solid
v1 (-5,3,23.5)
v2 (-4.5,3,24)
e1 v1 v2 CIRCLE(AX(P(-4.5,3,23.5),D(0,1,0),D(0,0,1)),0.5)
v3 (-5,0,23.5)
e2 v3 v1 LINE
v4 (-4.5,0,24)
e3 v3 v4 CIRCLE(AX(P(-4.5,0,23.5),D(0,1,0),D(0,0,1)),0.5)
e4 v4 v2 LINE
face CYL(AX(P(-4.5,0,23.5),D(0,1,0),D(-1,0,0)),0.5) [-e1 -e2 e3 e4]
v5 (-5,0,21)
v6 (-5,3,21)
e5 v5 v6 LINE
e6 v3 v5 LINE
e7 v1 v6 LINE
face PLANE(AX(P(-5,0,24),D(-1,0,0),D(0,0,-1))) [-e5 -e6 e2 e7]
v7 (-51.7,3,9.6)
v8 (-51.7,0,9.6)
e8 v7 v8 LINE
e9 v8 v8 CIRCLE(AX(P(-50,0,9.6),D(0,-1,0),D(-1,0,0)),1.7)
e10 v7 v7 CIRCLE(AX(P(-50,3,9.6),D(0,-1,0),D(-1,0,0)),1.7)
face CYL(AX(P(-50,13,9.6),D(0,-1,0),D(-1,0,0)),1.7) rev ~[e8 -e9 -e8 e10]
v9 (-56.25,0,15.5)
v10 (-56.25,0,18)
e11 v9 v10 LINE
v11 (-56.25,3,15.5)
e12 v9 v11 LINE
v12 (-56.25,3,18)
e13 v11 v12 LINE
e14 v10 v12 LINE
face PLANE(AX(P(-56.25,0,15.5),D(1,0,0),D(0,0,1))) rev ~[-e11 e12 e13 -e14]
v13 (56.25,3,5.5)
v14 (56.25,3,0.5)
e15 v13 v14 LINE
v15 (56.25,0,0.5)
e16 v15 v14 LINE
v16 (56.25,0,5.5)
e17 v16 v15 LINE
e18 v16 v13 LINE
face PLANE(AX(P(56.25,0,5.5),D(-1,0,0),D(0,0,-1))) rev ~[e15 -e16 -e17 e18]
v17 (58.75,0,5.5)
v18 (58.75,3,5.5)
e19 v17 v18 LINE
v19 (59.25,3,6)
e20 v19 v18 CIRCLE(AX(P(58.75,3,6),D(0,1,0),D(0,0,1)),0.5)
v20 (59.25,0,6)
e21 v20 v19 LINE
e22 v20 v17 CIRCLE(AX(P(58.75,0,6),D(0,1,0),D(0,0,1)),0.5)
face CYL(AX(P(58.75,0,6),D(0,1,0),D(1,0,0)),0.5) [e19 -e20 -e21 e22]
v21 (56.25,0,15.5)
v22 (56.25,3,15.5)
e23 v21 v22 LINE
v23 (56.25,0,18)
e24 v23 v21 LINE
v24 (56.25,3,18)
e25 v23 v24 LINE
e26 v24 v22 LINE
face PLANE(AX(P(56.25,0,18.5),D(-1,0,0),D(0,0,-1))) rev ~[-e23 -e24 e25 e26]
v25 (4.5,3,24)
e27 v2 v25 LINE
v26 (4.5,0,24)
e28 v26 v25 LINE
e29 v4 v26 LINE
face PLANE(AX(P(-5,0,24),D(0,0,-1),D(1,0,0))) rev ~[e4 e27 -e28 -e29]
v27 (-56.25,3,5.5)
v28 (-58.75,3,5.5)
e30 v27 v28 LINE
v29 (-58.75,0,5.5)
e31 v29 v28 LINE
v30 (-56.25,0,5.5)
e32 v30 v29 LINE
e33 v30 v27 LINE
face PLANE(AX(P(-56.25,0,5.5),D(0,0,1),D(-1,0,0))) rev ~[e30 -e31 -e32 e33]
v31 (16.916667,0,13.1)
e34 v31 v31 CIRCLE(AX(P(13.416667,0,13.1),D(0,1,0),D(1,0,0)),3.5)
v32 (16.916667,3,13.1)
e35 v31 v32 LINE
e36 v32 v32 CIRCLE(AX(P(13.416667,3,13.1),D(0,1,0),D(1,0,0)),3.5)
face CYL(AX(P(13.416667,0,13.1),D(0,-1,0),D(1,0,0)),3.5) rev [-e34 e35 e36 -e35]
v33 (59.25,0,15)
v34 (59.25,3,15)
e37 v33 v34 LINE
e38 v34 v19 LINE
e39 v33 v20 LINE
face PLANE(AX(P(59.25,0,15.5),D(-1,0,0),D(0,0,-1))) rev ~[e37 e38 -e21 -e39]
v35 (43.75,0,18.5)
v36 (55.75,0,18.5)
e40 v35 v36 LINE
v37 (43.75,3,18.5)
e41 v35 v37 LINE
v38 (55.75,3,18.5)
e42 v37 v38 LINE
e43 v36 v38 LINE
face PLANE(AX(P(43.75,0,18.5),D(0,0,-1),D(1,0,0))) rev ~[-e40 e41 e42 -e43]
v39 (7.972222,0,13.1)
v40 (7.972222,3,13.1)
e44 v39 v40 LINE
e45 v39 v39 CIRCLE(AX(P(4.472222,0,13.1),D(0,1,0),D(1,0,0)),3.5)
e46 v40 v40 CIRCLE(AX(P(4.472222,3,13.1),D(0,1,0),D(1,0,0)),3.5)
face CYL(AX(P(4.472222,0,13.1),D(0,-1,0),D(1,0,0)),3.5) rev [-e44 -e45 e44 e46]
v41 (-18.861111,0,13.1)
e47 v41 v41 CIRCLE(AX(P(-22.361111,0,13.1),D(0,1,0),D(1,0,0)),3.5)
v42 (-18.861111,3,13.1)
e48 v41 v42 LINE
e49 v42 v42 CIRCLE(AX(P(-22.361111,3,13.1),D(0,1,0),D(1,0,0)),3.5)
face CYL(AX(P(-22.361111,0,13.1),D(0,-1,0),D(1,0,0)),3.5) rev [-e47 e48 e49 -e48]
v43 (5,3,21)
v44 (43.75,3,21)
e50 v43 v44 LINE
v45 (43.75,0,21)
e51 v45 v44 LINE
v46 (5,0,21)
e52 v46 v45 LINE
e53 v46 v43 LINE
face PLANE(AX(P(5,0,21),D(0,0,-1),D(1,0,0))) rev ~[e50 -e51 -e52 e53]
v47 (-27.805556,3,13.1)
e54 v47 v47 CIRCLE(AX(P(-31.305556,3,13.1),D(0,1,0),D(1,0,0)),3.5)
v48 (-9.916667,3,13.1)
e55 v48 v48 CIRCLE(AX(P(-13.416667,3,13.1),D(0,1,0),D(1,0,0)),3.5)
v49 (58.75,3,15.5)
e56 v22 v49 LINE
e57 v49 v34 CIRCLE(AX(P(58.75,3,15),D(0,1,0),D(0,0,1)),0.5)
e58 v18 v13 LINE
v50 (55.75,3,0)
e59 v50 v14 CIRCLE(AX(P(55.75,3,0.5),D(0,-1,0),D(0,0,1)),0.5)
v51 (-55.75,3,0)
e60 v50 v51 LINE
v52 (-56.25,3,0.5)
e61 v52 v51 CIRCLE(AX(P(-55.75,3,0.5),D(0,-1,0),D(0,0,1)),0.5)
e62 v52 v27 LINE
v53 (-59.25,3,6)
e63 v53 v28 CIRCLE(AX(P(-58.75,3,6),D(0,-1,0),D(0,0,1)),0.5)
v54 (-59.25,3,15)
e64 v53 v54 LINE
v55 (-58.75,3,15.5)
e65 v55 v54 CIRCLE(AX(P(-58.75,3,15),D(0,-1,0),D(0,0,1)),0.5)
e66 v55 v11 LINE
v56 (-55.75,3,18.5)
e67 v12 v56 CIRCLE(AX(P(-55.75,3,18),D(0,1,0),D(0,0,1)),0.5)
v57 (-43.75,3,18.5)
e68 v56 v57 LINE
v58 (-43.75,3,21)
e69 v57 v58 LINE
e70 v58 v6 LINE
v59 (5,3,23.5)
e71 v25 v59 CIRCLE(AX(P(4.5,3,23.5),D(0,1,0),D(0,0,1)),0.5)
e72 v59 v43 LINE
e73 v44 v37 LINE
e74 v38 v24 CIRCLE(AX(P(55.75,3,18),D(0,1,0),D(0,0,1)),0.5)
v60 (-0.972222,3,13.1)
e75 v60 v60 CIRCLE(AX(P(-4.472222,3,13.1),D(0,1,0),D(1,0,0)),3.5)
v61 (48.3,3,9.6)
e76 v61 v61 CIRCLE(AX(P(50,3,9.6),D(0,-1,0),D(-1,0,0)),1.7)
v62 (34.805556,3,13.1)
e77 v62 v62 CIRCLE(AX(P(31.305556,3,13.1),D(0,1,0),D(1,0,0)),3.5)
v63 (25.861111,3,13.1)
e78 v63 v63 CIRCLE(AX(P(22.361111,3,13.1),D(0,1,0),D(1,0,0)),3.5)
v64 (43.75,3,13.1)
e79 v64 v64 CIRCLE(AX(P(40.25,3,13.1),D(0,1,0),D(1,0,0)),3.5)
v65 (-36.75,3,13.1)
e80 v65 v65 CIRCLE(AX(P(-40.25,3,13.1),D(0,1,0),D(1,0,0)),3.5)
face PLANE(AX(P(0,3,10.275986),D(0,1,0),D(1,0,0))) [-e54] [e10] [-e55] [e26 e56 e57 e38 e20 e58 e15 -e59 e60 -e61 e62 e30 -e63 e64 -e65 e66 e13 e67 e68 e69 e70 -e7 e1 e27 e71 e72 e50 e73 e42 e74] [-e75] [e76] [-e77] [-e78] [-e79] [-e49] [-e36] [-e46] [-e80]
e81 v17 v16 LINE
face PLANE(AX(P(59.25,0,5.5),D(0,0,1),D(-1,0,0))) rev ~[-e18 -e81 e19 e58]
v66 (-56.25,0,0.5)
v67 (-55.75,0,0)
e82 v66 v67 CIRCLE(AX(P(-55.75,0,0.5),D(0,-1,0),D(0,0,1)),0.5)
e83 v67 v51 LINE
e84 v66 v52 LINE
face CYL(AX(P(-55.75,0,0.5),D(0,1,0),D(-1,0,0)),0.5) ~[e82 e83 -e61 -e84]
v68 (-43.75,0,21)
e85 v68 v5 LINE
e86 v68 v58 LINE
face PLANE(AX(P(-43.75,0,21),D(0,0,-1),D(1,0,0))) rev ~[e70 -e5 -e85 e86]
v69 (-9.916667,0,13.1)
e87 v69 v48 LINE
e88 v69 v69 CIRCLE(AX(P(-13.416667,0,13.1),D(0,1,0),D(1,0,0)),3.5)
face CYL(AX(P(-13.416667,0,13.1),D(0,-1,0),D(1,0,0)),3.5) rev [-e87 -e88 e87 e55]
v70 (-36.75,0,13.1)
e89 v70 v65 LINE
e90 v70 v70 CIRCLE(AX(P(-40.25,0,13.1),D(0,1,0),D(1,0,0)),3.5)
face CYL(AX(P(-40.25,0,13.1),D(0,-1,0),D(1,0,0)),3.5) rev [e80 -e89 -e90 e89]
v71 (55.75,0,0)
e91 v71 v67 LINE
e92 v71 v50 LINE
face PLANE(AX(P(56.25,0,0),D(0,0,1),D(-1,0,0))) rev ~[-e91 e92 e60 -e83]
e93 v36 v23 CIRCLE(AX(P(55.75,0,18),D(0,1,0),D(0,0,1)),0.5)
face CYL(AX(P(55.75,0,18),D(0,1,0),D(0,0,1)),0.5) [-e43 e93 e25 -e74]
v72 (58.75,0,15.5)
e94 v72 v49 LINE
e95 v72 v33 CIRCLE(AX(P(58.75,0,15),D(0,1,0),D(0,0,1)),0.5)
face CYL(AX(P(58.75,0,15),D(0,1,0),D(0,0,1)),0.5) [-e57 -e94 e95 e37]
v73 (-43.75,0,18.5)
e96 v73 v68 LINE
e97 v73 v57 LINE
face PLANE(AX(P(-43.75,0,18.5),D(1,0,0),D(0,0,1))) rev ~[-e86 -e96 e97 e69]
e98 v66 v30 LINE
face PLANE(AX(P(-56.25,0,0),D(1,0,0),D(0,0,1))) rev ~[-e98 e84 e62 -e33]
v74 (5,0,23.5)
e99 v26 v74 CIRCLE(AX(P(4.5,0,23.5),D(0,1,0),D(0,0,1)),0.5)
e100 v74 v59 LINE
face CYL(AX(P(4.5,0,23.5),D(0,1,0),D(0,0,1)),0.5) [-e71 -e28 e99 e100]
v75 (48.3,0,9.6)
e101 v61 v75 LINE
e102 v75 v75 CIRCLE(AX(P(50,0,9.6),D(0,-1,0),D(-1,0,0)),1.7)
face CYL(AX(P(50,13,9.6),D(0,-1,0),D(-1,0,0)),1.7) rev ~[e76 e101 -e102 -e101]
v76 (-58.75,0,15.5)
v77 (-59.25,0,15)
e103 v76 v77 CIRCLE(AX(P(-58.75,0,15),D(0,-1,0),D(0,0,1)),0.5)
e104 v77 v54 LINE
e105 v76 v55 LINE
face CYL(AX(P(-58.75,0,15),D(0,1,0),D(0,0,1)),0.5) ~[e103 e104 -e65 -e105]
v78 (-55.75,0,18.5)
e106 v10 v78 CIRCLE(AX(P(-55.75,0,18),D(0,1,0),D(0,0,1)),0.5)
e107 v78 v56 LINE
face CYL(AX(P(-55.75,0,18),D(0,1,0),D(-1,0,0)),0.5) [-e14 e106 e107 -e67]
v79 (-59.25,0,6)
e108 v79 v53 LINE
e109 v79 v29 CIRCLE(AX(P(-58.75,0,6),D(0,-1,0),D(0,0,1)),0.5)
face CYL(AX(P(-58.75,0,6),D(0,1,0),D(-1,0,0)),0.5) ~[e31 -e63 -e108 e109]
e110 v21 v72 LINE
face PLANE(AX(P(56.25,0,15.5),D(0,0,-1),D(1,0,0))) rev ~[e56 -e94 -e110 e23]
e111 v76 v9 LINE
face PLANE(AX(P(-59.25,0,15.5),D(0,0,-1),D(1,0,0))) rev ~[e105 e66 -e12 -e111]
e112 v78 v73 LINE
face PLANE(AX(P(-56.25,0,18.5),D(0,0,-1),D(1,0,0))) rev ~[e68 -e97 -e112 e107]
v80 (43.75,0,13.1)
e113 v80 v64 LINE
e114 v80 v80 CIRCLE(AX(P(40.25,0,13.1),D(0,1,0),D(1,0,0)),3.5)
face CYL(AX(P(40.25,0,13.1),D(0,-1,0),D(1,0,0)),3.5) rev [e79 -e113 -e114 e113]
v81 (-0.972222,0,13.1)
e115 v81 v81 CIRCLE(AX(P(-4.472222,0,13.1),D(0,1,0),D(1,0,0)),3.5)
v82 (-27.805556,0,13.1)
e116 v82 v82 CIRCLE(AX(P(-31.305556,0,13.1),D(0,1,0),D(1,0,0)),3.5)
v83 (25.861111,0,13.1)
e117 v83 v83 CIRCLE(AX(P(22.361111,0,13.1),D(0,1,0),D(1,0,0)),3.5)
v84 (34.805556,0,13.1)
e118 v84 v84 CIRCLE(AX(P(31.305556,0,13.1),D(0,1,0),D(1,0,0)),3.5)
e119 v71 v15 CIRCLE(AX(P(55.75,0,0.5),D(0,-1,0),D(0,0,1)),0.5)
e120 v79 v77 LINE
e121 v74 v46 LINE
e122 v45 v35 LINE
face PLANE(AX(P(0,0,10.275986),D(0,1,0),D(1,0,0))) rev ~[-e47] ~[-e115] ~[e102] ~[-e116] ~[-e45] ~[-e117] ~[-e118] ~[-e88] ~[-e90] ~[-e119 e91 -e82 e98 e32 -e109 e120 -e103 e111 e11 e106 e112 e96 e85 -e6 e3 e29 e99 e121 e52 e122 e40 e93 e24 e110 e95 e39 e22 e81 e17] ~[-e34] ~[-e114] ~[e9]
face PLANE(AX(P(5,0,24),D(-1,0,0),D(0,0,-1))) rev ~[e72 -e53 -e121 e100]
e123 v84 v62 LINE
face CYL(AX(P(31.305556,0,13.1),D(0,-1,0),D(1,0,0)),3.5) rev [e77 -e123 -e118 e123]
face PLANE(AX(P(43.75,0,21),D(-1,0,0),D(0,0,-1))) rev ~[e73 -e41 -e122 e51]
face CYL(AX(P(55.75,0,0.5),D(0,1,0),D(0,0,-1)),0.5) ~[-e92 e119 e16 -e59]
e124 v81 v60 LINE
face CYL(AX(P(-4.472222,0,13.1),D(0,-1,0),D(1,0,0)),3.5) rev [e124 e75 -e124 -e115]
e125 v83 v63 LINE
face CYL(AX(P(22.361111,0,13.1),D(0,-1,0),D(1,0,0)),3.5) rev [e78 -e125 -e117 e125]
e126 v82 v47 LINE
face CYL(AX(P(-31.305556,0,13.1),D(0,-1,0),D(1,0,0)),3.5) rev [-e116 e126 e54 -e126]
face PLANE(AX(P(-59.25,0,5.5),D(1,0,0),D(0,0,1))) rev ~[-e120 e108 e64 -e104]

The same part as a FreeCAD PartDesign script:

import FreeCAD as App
import Part
import Sketcher
Q = App.Units.Quantity


def edges_at(feature, points):
    """Names of the edges that pass closest to the given points."""
    edges = feature.Shape.Edges
    near = lambda p: min(range(len(edges)), key=lambda i: edges[i].distToShape(Part.Vertex(*p))[0])
    return sorted({f"Edge{near(p) + 1}" for p in points})

doc = App.newDocument("Part")
body = doc.addObject("PartDesign::Body", "Body")

# Sketch on XZ plane
sketch1 = body.newObject("Sketcher::SketchObject", "Sketch")
sketch1.AttachmentSupport = (doc.getObject("XZ_Plane"), [""])
sketch1.MapMode = "FlatFace"
sketch1.addGeometry([
    Part.LineSegment(App.Vector(-43.8, 21, 0), App.Vector(-5, 21, 0)),  # 0
    Part.LineSegment(App.Vector(-5, 21, 0), App.Vector(-5, 24, 0)),  # 1
    Part.LineSegment(App.Vector(-5, 24, 0), App.Vector(5, 24, 0)),  # 2
    Part.LineSegment(App.Vector(5, 24, 0), App.Vector(5, 21, 0)),  # 3
    Part.LineSegment(App.Vector(5, 21, 0), App.Vector(43.8, 21, 0)),  # 4
    Part.LineSegment(App.Vector(43.8, 21, 0), App.Vector(43.8, 18.5, 0)),  # 5
    Part.LineSegment(App.Vector(43.8, 18.5, 0), App.Vector(56.2, 18.5, 0)),  # 6
    Part.LineSegment(App.Vector(56.2, 18.5, 0), App.Vector(56.2, 15.5, 0)),  # 7
    Part.LineSegment(App.Vector(56.2, 15.5, 0), App.Vector(59.2, 15.5, 0)),  # 8
    Part.LineSegment(App.Vector(59.2, 15.5, 0), App.Vector(59.2, 5.5, 0)),  # 9
    Part.LineSegment(App.Vector(59.2, 5.5, 0), App.Vector(56.2, 5.5, 0)),  # 10
    Part.LineSegment(App.Vector(56.2, 5.5, 0), App.Vector(56.2, 0, 0)),  # 11
    Part.LineSegment(App.Vector(56.2, 0, 0), App.Vector(-56.2, 0, 0)),  # 12
    Part.LineSegment(App.Vector(-56.2, 0, 0), App.Vector(-56.2, 5.5, 0)),  # 13
    Part.LineSegment(App.Vector(-56.2, 5.5, 0), App.Vector(-59.2, 5.5, 0)),  # 14
    Part.LineSegment(App.Vector(-59.2, 5.5, 0), App.Vector(-59.2, 15.5, 0)),  # 15
    Part.LineSegment(App.Vector(-59.2, 15.5, 0), App.Vector(-56.2, 15.5, 0)),  # 16
    Part.LineSegment(App.Vector(-56.2, 15.5, 0), App.Vector(-56.2, 18.5, 0)),  # 17
    Part.LineSegment(App.Vector(-56.2, 18.5, 0), App.Vector(-43.8, 18.5, 0)),  # 18
    Part.LineSegment(App.Vector(-43.8, 18.5, 0), App.Vector(-43.8, 21, 0)),  # 19
    Part.Circle(App.Vector(-40.2, 13.1, 0), App.Vector(0, 0, 1), 3.5),  # 20
    Part.Circle(App.Vector(-31.3, 13.1, 0), App.Vector(0, 0, 1), 3.5),  # 21
    Part.Circle(App.Vector(-22.4, 13.1, 0), App.Vector(0, 0, 1), 3.5),  # 22
    Part.Circle(App.Vector(-13.4, 13.1, 0), App.Vector(0, 0, 1), 3.5),  # 23
    Part.Circle(App.Vector(-4.5, 13.1, 0), App.Vector(0, 0, 1), 3.5),  # 24
    Part.Circle(App.Vector(4.5, 13.1, 0), App.Vector(0, 0, 1), 3.5),  # 25
    Part.Circle(App.Vector(13.4, 13.1, 0), App.Vector(0, 0, 1), 3.5),  # 26
    Part.Circle(App.Vector(22.4, 13.1, 0), App.Vector(0, 0, 1), 3.5),  # 27
    Part.Circle(App.Vector(31.3, 13.1, 0), App.Vector(0, 0, 1), 3.5),  # 28
    Part.Circle(App.Vector(40.2, 13.1, 0), App.Vector(0, 0, 1), 3.5),  # 29
], False)
sketch1.addConstraint([
    Sketcher.Constraint("Coincident", 0, 2, 1, 1),
    Sketcher.Constraint("Coincident", 1, 2, 2, 1),
    Sketcher.Constraint("Coincident", 2, 2, 3, 1),
    Sketcher.Constraint("Coincident", 3, 2, 4, 1),
    Sketcher.Constraint("Coincident", 4, 2, 5, 1),
    Sketcher.Constraint("Coincident", 5, 2, 6, 1),
    Sketcher.Constraint("Coincident", 6, 2, 7, 1),
    Sketcher.Constraint("Coincident", 7, 2, 8, 1),
    Sketcher.Constraint("Coincident", 8, 2, 9, 1),
    Sketcher.Constraint("Coincident", 9, 2, 10, 1),
    Sketcher.Constraint("Coincident", 10, 2, 11, 1),
    Sketcher.Constraint("Coincident", 11, 2, 12, 1),
    Sketcher.Constraint("Coincident", 12, 2, 13, 1),
    Sketcher.Constraint("Coincident", 13, 2, 14, 1),
    Sketcher.Constraint("Coincident", 14, 2, 15, 1),
    Sketcher.Constraint("Coincident", 15, 2, 16, 1),
    Sketcher.Constraint("Coincident", 16, 2, 17, 1),
    Sketcher.Constraint("Coincident", 17, 2, 18, 1),
    Sketcher.Constraint("Coincident", 18, 2, 19, 1),
    Sketcher.Constraint("Coincident", 19, 2, 0, 1),
    Sketcher.Constraint("Horizontal", 0),
    Sketcher.Constraint("Vertical", 1),
    Sketcher.Constraint("Horizontal", 2),
    Sketcher.Constraint("Vertical", 3),
    Sketcher.Constraint("Horizontal", 4),
    Sketcher.Constraint("Vertical", 5),
    Sketcher.Constraint("Horizontal", 6),
    Sketcher.Constraint("Vertical", 7),
    Sketcher.Constraint("Horizontal", 8),
    Sketcher.Constraint("Vertical", 9),
    Sketcher.Constraint("Horizontal", 10),
    Sketcher.Constraint("Vertical", 11),
    Sketcher.Constraint("Horizontal", 12),
    Sketcher.Constraint("Vertical", 13),
    Sketcher.Constraint("Horizontal", 14),
    Sketcher.Constraint("Vertical", 15),
    Sketcher.Constraint("Horizontal", 16),
    Sketcher.Constraint("Vertical", 17),
    Sketcher.Constraint("Horizontal", 18),
    Sketcher.Constraint("Vertical", 19),
    Sketcher.Constraint("Equal", 20, 21),
    Sketcher.Constraint("Equal", 21, 22),
    Sketcher.Constraint("Equal", 22, 23),
    Sketcher.Constraint("Equal", 23, 24),
    Sketcher.Constraint("Equal", 24, 25),
    Sketcher.Constraint("Equal", 25, 26),
    Sketcher.Constraint("Equal", 26, 27),
    Sketcher.Constraint("Equal", 27, 28),
    Sketcher.Constraint("Equal", 28, 29),
    Sketcher.Constraint("Symmetric", 11, 2, 12, 2, -1, 1),
    Sketcher.Constraint("Symmetric", 24, 3, 25, 3, -2),
    Sketcher.Constraint("Symmetric", 23, 3, 26, 3, -2),
    Sketcher.Constraint("Symmetric", 22, 3, 27, 3, -2),
    Sketcher.Constraint("Symmetric", 21, 3, 28, 3, -2),
    Sketcher.Constraint("Symmetric", 20, 3, 29, 3, -2),
    Sketcher.Constraint("Symmetric", 0, 2, 3, 2, -2),
    Sketcher.Constraint("Symmetric", 9, 2, 14, 2, -2),
    Sketcher.Constraint("Symmetric", 7, 2, 16, 2, -2),
    Sketcher.Constraint("Symmetric", 5, 2, 18, 2, -2),
    Sketcher.Constraint("Horizontal", 20, 3, 21, 3),
    Sketcher.Constraint("Horizontal", 21, 3, 22, 3),
    Sketcher.Constraint("Horizontal", 22, 3, 23, 3),
    Sketcher.Constraint("Horizontal", 23, 3, 24, 3),
    Sketcher.Constraint("Vertical", 7, 2, 10, 2),
    Sketcher.Constraint("Equal", 16, 1),
    Sketcher.Constraint("Equal", 3, 7),
    Sketcher.Constraint("Equal", 2, 9),
    Sketcher.Constraint("Diameter", 20, Q("7 mm")),
    Sketcher.Constraint("DistanceX", 2, 1, 2, 2, Q("10 mm")),
    Sketcher.Constraint("DistanceX", 8, 1, 8, 2, Q("3 mm")),
    Sketcher.Constraint("DistanceX", 6, 1, 6, 2, Q("12.5 mm")),
    Sketcher.Constraint("DistanceX", 12, 2, 12, 1, Q("112.5 mm")),
    Sketcher.Constraint("DistanceY", 5, 2, 5, 1, Q("2.5 mm")),
    Sketcher.Constraint("DistanceY", 11, 2, 11, 1, Q("5.5 mm")),
    Sketcher.Constraint("DistanceX", 29, 3, 6, 2, Q("16 mm")),
    Sketcher.Constraint("DistanceY", -1, 1, 20, 3, Q("13.1 mm")),
    Sketcher.Constraint("DistanceX", 22, 3, -1, 1, Q("22.361111 mm")),
    Sketcher.Constraint("DistanceX", 21, 3, 23, 3, Q("17.888889 mm")),
    Sketcher.Constraint("DistanceX", 22, 3, 24, 3, Q("17.888889 mm")),
    Sketcher.Constraint("DistanceX", 23, 3, 25, 3, Q("17.888889 mm")),
])
pad1 = body.newObject("PartDesign::Pad", "Pad")
pad1.Profile = sketch1
pad1.Length = 3
pad1.Reversed = True

# Sketch on XZ plane
sketch2 = body.newObject("Sketcher::SketchObject", "Sketch001")
sketch2.AttachmentSupport = (doc.getObject("XZ_Plane"), [""])
sketch2.MapMode = "FlatFace"
sketch2.AttachmentOffset = App.Placement(App.Vector(0, 0, -3), App.Rotation())
sketch2.addGeometry([
    Part.Circle(App.Vector(50, 9.6, 0), App.Vector(0, 0, 1), 1.7),
    Part.Circle(App.Vector(-50, 9.6, 0), App.Vector(0, 0, 1), 1.7),
], False)
sketch2.addConstraint([
    Sketcher.Constraint("Equal", 0, 1),
    Sketcher.Constraint("Symmetric", 0, 3, 1, 3, -2),
    Sketcher.Constraint("Diameter", 0, Q("3.4 mm")),
    Sketcher.Constraint("DistanceX", -1, 1, 0, 3, Q("50 mm")),
    Sketcher.Constraint("DistanceY", -1, 1, 0, 3, Q("9.6 mm")),
])
doc.recompute()
hole = body.newObject("PartDesign::Hole", "Hole")
hole.Profile = sketch2
hole.ThreadType = "None"
hole.Diameter = 3.4
hole.DepthType = "Dimension"
hole.Depth = 10
hole.DrillPoint = "Angled"
hole.DrillPointAngle = 118
hole.Reversed = True
doc.recompute()

fillet = body.newObject("PartDesign::Fillet", "Fillet")
fillet.Base = (hole, edges_at(hole, [
    (-59.25, 1.5, 15.5),
    (-59.25, 1.5, 5.5),
    (59.25, 1.5, 5.5),
    (59.25, 1.5, 15.5),
]))
fillet.Radius = 0.5
doc.recompute()

fillet2 = body.newObject("PartDesign::Fillet", "Fillet001")
fillet2.Base = (fillet, edges_at(fillet, [
    (-56.25, 1.5, 18.5),
    (-56.25, 1.5, 0),
    (56.25, 1.5, 0),
    (56.25, 1.5, 18.5),
    (5, 1.5, 24),
    (-5, 1.5, 24),
]))
fillet2.Radius = 0.5

doc.recompute()
